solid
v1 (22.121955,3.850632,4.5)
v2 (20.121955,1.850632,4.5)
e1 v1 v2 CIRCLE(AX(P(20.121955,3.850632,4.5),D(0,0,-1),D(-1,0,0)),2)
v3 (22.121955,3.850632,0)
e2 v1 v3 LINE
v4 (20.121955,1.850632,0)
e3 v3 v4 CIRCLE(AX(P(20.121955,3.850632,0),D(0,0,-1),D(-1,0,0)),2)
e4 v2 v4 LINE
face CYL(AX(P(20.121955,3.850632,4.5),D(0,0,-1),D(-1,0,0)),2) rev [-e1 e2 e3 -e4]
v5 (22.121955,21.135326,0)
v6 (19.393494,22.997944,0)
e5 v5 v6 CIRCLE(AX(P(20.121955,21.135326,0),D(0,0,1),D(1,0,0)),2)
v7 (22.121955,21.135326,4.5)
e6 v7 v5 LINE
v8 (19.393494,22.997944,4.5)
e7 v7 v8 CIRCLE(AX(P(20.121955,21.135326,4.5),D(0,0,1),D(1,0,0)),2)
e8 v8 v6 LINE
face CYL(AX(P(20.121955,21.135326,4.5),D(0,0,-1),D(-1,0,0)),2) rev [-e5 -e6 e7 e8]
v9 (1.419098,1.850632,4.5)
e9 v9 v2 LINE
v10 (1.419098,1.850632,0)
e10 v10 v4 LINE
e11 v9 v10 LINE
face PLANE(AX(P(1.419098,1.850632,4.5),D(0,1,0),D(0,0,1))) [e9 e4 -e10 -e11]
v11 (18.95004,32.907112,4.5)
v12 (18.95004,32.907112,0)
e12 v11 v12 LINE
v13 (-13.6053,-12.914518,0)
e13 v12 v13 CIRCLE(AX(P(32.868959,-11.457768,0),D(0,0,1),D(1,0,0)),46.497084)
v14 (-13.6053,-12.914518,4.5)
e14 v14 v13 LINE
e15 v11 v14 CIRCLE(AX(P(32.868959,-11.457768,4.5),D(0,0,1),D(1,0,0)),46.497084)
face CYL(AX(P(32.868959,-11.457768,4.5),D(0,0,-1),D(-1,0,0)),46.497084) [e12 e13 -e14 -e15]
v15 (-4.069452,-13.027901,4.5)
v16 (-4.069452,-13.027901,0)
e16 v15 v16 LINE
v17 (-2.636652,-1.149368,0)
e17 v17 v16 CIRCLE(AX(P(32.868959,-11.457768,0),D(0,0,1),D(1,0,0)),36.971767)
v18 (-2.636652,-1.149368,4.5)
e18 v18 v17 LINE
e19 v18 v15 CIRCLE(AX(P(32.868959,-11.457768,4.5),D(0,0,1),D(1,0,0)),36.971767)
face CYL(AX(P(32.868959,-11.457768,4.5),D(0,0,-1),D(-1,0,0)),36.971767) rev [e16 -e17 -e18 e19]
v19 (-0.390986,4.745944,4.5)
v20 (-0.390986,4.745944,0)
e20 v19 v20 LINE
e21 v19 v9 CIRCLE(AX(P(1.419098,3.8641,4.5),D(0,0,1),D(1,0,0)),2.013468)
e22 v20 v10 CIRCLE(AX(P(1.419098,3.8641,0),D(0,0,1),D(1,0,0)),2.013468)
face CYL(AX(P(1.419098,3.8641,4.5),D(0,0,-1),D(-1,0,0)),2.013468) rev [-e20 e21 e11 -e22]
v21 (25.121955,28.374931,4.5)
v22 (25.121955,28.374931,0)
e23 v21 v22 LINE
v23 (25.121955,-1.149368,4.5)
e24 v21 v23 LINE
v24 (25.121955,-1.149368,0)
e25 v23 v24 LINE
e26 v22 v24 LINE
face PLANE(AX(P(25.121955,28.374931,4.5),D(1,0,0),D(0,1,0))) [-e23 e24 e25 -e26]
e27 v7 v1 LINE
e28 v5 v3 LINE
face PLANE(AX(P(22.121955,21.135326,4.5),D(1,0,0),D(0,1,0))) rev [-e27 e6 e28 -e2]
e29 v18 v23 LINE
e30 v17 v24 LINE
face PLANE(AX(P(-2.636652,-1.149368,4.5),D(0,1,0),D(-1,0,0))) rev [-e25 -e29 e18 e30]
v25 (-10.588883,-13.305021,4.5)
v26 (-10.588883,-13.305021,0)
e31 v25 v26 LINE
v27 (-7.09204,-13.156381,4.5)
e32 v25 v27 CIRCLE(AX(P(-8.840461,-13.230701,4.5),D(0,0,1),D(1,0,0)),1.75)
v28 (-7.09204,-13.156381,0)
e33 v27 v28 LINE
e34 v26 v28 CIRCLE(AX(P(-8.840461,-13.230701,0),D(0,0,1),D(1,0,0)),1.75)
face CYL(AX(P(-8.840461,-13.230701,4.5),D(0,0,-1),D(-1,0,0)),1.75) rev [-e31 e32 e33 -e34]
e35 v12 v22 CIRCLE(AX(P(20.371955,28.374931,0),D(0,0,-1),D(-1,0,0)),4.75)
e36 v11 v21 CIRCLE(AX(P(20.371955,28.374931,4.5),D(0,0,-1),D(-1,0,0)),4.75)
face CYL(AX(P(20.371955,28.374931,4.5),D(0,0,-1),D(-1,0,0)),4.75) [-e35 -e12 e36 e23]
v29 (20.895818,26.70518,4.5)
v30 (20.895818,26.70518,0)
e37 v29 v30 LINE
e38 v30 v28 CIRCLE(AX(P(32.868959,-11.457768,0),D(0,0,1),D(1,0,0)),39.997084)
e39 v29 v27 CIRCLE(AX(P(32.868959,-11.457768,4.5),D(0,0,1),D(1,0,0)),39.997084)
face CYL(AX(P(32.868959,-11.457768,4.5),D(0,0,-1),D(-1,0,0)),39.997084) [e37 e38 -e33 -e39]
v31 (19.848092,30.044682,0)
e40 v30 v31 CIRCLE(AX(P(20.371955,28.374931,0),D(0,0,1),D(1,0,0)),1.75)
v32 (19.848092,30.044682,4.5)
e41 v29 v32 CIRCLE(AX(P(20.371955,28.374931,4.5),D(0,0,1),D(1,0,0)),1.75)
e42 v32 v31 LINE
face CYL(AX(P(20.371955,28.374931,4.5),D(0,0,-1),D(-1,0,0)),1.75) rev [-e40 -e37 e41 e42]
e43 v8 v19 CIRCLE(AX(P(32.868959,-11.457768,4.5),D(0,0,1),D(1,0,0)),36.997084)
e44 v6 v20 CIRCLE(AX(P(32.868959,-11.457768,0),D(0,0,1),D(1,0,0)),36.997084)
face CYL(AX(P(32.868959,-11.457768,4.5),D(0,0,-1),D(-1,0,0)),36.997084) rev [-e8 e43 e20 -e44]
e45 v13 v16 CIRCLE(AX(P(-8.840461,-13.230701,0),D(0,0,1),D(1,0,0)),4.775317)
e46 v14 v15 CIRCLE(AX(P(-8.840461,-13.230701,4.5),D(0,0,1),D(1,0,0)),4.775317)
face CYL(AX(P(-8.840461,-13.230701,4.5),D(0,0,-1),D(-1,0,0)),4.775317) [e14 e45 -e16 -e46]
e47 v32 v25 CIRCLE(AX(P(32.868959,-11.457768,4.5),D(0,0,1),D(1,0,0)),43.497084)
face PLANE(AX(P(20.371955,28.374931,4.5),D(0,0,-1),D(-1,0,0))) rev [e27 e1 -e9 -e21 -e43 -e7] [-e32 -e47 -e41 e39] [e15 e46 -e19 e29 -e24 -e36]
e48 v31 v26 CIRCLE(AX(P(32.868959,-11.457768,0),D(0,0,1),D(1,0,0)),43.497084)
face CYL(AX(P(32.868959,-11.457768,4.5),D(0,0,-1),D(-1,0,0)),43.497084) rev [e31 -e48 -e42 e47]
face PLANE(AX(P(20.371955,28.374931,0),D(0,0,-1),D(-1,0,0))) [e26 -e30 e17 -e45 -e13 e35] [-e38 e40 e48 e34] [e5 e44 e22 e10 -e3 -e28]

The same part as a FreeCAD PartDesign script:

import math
import FreeCAD as App
import Part
import Sketcher

V = App.Vector
Q = App.Units.Quantity

doc = App.newDocument("Part")
body = doc.addObject("PartDesign::Body", "Body")

# Sketch on XY plane
sketch1 = doc.addObject("Sketcher::SketchObject", "Sketch")
body.addObject(sketch1)
sketch1.AttachmentSupport = (doc.XY_Plane, [""])
sketch1.MapMode = "FlatFace"
sketch1.addGeometry([
    Part.LineSegment(V(-2.6, -1.1, 0), V(25.1, -1.1, 0)),  # 0
    Part.LineSegment(V(25.1, -1.1, 0), V(25.1, 28.4, 0)),  # 1
    Part.ArcOfCircle(Part.Circle(V(20.4, 28.4, 0), V(0, 0, 1), 4.8), math.radians(0), math.radians(107)),  # 2
    Part.ArcOfCircle(Part.Circle(V(32.9, -11.5, 0), V(0, 0, 1), 46.5), math.radians(107), math.radians(182)),  # 3
    Part.ArcOfCircle(Part.Circle(V(-8.8, -13.2, 0), V(0, 0, 1), 4.8), math.radians(176), math.radians(362)),  # 4
    Part.ArcOfCircle(Part.Circle(V(32.9, -11.5, 0), V(0, 0, 1), 37), math.radians(163.81), math.radians(182.43)),  # 5
    Part.ArcOfCircle(Part.Circle(V(32.9, -11.5, 0), V(0, 0, 1), 43.5), math.radians(107), math.radians(182)),  # 6
    Part.ArcOfCircle(Part.Circle(V(20.4, 28.4, 0), V(0, 0, 1), 1.8), math.radians(-73), math.radians(107)),  # 7
    Part.ArcOfCircle(Part.Circle(V(32.9, -11.5, 0), V(0, 0, 1), 40), math.radians(107), math.radians(182)),  # 8
    Part.ArcOfCircle(Part.Circle(V(-8.8, -13.2, 0), V(0, 0, 1), 1.8), math.radians(-178), math.radians(2)),  # 9
    Part.LineSegment(V(20.1, 1.9, 0), V(1.4, 1.9, 0)),  # 10
    Part.ArcOfCircle(Part.Circle(V(1.4, 3.9, 0), V(0, 0, 1), 2), math.radians(154), math.radians(270)),  # 11
    Part.ArcOfCircle(Part.Circle(V(32.9, -11.5, 0), V(0, 0, 1), 37), math.radians(111), math.radians(154)),  # 12
    Part.ArcOfCircle(Part.Circle(V(20.1, 21.1, 0), V(0, 0, 1), 2), math.radians(0), math.radians(111)),  # 13
    Part.LineSegment(V(22.1, 21.1, 0), V(22.1, 3.9, 0)),  # 14
    Part.ArcOfCircle(Part.Circle(V(20.1, 3.9, 0), V(0, 0, 1), 2), math.radians(-90), math.radians(0)),  # 15
], False)
sketch1.addConstraint([
    Sketcher.Constraint("Coincident", 0, 2, 1, 1),
    Sketcher.Constraint("Tangent", 1, 2, 2, 1),
    Sketcher.Constraint("Tangent", 2, 2, 3, 1),
    Sketcher.Constraint("Coincident", 3, 2, 4, 1),
    Sketcher.Constraint("Tangent", 4, 2, 5, 2),
    Sketcher.Constraint("Coincident", 5, 1, 0, 1),
    Sketcher.Constraint("Tangent", 6, 1, 7, 2),
    Sketcher.Constraint("Tangent", 7, 1, 8, 1),
    Sketcher.Constraint("Tangent", 8, 2, 9, 2),
    Sketcher.Constraint("Tangent", 9, 1, 6, 2),
    Sketcher.Constraint("Tangent", 10, 2, 11, 2),
    Sketcher.Constraint("Tangent", 11, 1, 12, 2),
    Sketcher.Constraint("Tangent", 12, 1, 13, 2),
    Sketcher.Constraint("Tangent", 13, 1, 14, 1),
    Sketcher.Constraint("Tangent", 14, 2, 15, 2),
    Sketcher.Constraint("Tangent", 15, 1, 10, 1),
    Sketcher.Constraint("Horizontal", 0),
    Sketcher.Constraint("Vertical", 1),
    Sketcher.Constraint("Horizontal", 10),
    Sketcher.Constraint("Vertical", 14),
    Sketcher.Constraint("Coincident", 5, 3, 3, 3),
    Sketcher.Constraint("Coincident", 6, 3, 3, 3),
    Sketcher.Constraint("Coincident", 7, 3, 2, 3),
    Sketcher.Constraint("Coincident", 8, 3, 3, 3),
    Sketcher.Constraint("Coincident", 9, 3, 4, 3),
    Sketcher.Constraint("Coincident", 12, 3, 3, 3),
    Sketcher.Constraint("Equal", 13, 15),
    Sketcher.Constraint("Radius", 13, Q("2 mm")),
    Sketcher.Constraint("Radius", 2, Q("4.75 mm")),
    Sketcher.Constraint("Radius", 7, Q("1.75 mm")),
    Sketcher.Constraint("DistanceX", 15, 3, 0, 2, Q("5 mm")),
    Sketcher.Constraint("DistanceY", 0, 2, 15, 3, Q("5 mm")),
    Sketcher.Constraint("Radius", 11, Q("2.013468 mm")),
    Sketcher.Constraint("DistanceY", 1, 1, 1, 2, Q("29.524299 mm")),
    Sketcher.Constraint("Radius", 3, Q("46.497084 mm")),
    Sketcher.Constraint("Radius", 4, Q("4.775317 mm")),
    Sketcher.Constraint("Radius", 12, Q("36.997084 mm")),
    Sketcher.Constraint("DistanceY", 4, 2, 11, 3, Q("16.892001 mm")),
    Sketcher.Constraint("DistanceY", 4, 3, -1, 1, Q("13.230701 mm")),
    Sketcher.Constraint("DistanceX", -1, 1, 11, 3, Q("1.419098 mm")),
    Sketcher.Constraint("DistanceY", -1, 1, 11, 3, Q("3.8641 mm")),
])
pad1 = doc.addObject("PartDesign::Pad", "Pad")
body.addObject(pad1)
pad1.Profile = sketch1
pad1.Length = 4.5

doc.recompute()
